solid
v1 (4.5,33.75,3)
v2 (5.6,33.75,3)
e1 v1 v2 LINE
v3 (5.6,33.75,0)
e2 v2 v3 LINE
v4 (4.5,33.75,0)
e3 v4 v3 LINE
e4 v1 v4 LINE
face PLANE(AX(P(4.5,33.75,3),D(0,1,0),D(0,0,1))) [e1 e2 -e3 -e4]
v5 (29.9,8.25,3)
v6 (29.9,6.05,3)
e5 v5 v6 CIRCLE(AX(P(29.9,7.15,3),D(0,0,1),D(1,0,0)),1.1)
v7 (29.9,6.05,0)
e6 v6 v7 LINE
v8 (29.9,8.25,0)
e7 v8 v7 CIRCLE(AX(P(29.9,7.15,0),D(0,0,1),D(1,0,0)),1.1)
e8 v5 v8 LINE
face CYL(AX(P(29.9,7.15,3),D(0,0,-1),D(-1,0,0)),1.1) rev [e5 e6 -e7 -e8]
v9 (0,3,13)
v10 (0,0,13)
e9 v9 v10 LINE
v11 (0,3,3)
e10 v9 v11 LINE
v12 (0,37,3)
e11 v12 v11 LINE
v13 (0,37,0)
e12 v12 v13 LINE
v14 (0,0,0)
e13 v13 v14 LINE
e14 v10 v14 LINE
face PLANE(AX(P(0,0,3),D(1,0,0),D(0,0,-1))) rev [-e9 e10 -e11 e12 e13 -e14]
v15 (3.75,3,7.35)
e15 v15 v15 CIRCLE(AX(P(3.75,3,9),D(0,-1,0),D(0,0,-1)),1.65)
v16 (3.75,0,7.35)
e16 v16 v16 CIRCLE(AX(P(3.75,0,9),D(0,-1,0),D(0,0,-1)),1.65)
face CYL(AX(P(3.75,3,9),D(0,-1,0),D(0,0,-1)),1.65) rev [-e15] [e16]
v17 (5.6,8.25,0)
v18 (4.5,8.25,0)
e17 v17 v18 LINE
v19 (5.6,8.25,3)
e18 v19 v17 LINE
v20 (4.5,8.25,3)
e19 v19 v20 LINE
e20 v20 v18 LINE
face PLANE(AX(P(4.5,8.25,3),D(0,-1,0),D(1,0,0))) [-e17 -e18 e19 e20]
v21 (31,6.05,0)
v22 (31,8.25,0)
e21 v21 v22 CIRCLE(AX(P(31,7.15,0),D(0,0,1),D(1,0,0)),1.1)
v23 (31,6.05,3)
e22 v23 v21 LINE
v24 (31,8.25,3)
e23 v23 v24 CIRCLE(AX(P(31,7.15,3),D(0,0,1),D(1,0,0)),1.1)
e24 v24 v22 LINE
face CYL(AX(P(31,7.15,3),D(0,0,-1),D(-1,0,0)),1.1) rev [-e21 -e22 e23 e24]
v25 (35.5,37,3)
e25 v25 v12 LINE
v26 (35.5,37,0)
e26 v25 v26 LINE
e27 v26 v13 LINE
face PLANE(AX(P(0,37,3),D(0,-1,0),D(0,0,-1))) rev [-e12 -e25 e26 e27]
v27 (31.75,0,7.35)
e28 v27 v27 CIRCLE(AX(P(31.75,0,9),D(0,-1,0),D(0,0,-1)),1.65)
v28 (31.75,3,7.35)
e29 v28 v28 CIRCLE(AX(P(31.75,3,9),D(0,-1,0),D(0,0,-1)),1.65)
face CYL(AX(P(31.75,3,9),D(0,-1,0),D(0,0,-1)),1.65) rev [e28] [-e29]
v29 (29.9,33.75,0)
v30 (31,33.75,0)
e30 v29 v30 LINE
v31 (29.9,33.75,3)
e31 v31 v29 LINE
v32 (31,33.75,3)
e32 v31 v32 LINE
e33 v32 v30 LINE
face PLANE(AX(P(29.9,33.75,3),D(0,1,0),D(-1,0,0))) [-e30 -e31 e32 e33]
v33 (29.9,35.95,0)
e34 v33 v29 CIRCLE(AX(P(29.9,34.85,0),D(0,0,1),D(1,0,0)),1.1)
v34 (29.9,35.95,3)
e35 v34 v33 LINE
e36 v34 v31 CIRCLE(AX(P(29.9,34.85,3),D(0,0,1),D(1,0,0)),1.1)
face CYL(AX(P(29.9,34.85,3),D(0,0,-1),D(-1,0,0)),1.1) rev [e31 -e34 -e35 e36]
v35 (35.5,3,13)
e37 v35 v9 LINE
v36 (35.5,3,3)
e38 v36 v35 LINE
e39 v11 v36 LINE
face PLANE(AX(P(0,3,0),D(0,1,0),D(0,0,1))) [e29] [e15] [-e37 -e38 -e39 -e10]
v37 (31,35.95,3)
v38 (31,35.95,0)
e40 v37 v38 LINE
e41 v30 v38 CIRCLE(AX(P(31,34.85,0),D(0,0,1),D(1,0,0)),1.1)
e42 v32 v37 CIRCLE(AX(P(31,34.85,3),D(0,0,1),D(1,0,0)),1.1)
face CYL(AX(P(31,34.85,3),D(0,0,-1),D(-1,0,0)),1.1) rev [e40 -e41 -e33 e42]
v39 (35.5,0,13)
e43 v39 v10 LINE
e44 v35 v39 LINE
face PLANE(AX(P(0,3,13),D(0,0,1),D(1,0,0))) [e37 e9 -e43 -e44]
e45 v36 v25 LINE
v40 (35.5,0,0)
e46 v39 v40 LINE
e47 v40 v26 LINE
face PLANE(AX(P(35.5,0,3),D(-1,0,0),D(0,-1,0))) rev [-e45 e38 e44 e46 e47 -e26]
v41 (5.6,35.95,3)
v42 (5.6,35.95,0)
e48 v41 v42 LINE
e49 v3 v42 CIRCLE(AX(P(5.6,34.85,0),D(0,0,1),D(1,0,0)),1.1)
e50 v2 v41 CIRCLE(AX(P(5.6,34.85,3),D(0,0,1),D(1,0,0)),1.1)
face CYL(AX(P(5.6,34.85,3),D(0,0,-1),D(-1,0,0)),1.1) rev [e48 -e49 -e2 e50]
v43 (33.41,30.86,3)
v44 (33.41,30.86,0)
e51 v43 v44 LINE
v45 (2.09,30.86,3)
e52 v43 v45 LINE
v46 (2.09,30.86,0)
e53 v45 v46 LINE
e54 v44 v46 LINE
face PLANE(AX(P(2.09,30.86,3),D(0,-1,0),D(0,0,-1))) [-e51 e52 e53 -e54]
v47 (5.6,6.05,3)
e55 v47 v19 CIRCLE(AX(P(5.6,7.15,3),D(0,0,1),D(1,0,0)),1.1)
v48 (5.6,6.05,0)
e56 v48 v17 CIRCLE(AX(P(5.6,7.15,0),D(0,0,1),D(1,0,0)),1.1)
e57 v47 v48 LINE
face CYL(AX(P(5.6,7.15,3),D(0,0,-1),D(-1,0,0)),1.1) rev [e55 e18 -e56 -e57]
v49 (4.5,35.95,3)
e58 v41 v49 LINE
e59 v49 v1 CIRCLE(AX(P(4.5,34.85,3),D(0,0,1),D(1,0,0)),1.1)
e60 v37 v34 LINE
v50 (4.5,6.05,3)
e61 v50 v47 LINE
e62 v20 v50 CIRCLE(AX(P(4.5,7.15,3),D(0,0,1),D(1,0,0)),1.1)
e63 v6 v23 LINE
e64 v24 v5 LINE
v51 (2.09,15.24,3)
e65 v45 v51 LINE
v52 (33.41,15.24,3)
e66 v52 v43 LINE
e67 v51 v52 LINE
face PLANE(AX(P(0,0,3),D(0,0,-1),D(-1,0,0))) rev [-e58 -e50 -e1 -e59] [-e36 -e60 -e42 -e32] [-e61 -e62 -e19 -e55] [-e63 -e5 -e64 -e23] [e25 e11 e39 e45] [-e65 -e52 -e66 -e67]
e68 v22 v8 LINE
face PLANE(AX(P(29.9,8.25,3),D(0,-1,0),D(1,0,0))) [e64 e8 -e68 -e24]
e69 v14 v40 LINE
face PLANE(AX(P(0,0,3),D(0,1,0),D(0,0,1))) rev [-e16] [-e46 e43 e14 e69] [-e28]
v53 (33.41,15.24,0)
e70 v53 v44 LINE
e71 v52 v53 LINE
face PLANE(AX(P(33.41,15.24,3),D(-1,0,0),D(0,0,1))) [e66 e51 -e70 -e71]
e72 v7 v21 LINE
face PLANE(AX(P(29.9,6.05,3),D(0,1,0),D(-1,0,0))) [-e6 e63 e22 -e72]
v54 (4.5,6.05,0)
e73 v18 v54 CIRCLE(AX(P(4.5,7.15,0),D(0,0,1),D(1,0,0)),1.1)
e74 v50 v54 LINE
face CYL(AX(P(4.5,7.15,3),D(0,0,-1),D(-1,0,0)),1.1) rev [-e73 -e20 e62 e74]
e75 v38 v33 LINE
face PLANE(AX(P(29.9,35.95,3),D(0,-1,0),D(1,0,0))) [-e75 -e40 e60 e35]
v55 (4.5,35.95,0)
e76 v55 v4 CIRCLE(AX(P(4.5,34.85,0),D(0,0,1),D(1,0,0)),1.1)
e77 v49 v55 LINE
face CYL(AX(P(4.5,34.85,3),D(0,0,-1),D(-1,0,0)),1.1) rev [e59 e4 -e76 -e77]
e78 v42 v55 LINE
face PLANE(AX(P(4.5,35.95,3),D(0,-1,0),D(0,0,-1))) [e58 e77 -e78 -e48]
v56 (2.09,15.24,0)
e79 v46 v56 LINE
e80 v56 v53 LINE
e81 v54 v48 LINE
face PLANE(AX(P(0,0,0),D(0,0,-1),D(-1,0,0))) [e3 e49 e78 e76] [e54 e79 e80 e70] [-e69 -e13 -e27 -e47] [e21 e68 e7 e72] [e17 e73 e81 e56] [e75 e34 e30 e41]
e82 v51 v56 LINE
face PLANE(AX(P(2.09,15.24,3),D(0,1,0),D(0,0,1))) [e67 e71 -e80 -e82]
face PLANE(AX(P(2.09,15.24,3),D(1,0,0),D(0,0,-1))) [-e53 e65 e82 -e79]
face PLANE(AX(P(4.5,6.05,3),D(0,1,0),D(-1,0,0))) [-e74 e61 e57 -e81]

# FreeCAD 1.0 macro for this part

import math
import FreeCAD as App
import Part
import Sketcher
from FreeCAD import Vector
Q = App.Units.Quantity


def add_polygon(sketch, points):
    """Adds a closed chain of lines whose ends are joined by coincident constraints."""
    first, n = sketch.GeometryCount, len(points)
    for a, b in zip(points, points[1:] + points[:1]):
        sketch.addGeometry(Part.LineSegment(App.Vector(*a, 0), App.Vector(*b, 0)), False)
    for i in range(n):
        sketch.addConstraint(Sketcher.Constraint("Coincident", first + i, 2, first + (i + 1) % n, 1))

doc = App.newDocument("Part")
body = doc.addObject("PartDesign::Body", "Body")

# Sketch on XY plane
sketch1 = body.newObject("Sketcher::SketchObject", "Sketch")
sketch1.AttachmentSupport = (doc.getObject("XY_Plane"), [""])
sketch1.MapMode = "FlatFace"
add_polygon(sketch1, [(0, 37), (0, 0), (35.5, 0), (35.5, 37)])  # lines 0-3
sketch1.addGeometry(Part.ArcOfCircle(Part.Circle(Vector(4.5, 7.2, 0), Vector(0, 0, 1), 1.1), math.radians(90), math.radians(270)), False)  # 4
sketch1.addGeometry(Part.LineSegment(Vector(4.5, 8.2, 0), Vector(5.6, 8.2, 0)), False)  # 5
sketch1.addGeometry(Part.ArcOfCircle(Part.Circle(Vector(5.6, 7.2, 0), Vector(0, 0, 1), 1.1), math.radians(-90), math.radians(90)), False)  # 6
sketch1.addGeometry(Part.LineSegment(Vector(5.6, 6, 0), Vector(4.5, 6, 0)), False)  # 7
sketch1.addGeometry(Part.ArcOfCircle(Part.Circle(Vector(29.9, 7.2, 0), Vector(0, 0, 1), 1.1), math.radians(90), math.radians(270)), False)  # 8
sketch1.addGeometry(Part.LineSegment(Vector(29.9, 8.2, 0), Vector(31, 8.2, 0)), False)  # 9
sketch1.addGeometry(Part.ArcOfCircle(Part.Circle(Vector(31, 7.2, 0), Vector(0, 0, 1), 1.1), math.radians(-90), math.radians(90)), False)  # 10
sketch1.addGeometry(Part.LineSegment(Vector(31, 6, 0), Vector(29.9, 6, 0)), False)  # 11
sketch1.addGeometry(Part.ArcOfCircle(Part.Circle(Vector(4.5, 34.9, 0), Vector(0, 0, 1), 1.1), math.radians(90), math.radians(270)), False)  # 12
sketch1.addGeometry(Part.LineSegment(Vector(4.5, 36, 0), Vector(5.6, 36, 0)), False)  # 13
sketch1.addGeometry(Part.ArcOfCircle(Part.Circle(Vector(5.6, 34.9, 0), Vector(0, 0, 1), 1.1), math.radians(-90), math.radians(90)), False)  # 14
sketch1.addGeometry(Part.LineSegment(Vector(5.6, 33.8, 0), Vector(4.5, 33.8, 0)), False)  # 15
add_polygon(sketch1, [(33.4, 15.2), (2.1, 15.2), (2.1, 30.9), (33.4, 30.9)])  # lines 16-19
sketch1.addGeometry(Part.ArcOfCircle(Part.Circle(Vector(29.9, 34.9, 0), Vector(0, 0, 1), 1.1), math.radians(90), math.radians(270)), False)  # 20
sketch1.addGeometry(Part.LineSegment(Vector(29.9, 36, 0), Vector(31, 36, 0)), False)  # 21
sketch1.addGeometry(Part.ArcOfCircle(Part.Circle(Vector(31, 34.9, 0), Vector(0, 0, 1), 1.1), math.radians(-90), math.radians(90)), False)  # 22
sketch1.addGeometry(Part.LineSegment(Vector(31, 33.8, 0), Vector(29.9, 33.8, 0)), False)  # 23
sketch1.addConstraint(Sketcher.Constraint("Tangent", 4, 1, 5, 1))
sketch1.addConstraint(Sketcher.Constraint("Tangent", 5, 2, 6, 2))
sketch1.addConstraint(Sketcher.Constraint("Tangent", 6, 1, 7, 1))
sketch1.addConstraint(Sketcher.Constraint("Tangent", 7, 2, 4, 2))
sketch1.addConstraint(Sketcher.Constraint("Tangent", 8, 1, 9, 1))
sketch1.addConstraint(Sketcher.Constraint("Tangent", 9, 2, 10, 2))
sketch1.addConstraint(Sketcher.Constraint("Tangent", 10, 1, 11, 1))
sketch1.addConstraint(Sketcher.Constraint("Tangent", 11, 2, 8, 2))
sketch1.addConstraint(Sketcher.Constraint("Tangent", 12, 1, 13, 1))
sketch1.addConstraint(Sketcher.Constraint("Tangent", 13, 2, 14, 2))
sketch1.addConstraint(Sketcher.Constraint("Tangent", 14, 1, 15, 1))
sketch1.addConstraint(Sketcher.Constraint("Tangent", 15, 2, 12, 2))
sketch1.addConstraint(Sketcher.Constraint("Tangent", 20, 1, 21, 1))
sketch1.addConstraint(Sketcher.Constraint("Tangent", 21, 2, 22, 2))
sketch1.addConstraint(Sketcher.Constraint("Tangent", 22, 1, 23, 1))
sketch1.addConstraint(Sketcher.Constraint("Tangent", 23, 2, 20, 2))
sketch1.addConstraint(Sketcher.Constraint("Vertical", 0))
sketch1.addConstraint(Sketcher.Constraint("Horizontal", 1))
sketch1.addConstraint(Sketcher.Constraint("Vertical", 2))
sketch1.addConstraint(Sketcher.Constraint("Horizontal", 3))
sketch1.addConstraint(Sketcher.Constraint("Horizontal", 5))
sketch1.addConstraint(Sketcher.Constraint("Horizontal", 7))
sketch1.addConstraint(Sketcher.Constraint("Horizontal", 9))
sketch1.addConstraint(Sketcher.Constraint("Horizontal", 11))
sketch1.addConstraint(Sketcher.Constraint("Horizontal", 13))
sketch1.addConstraint(Sketcher.Constraint("Horizontal", 15))
sketch1.addConstraint(Sketcher.Constraint("Horizontal", 16))
sketch1.addConstraint(Sketcher.Constraint("Vertical", 17))
sketch1.addConstraint(Sketcher.Constraint("Horizontal", 18))
sketch1.addConstraint(Sketcher.Constraint("Vertical", 19))
sketch1.addConstraint(Sketcher.Constraint("Horizontal", 21))
sketch1.addConstraint(Sketcher.Constraint("Horizontal", 23))
sketch1.addConstraint(Sketcher.Constraint("Coincident", 0, 2, -1, 1))
sketch1.addConstraint(Sketcher.Constraint("Equal", 6, 8))
sketch1.addConstraint(Sketcher.Constraint("Equal", 10, 12))
sketch1.addConstraint(Sketcher.Constraint("Equal", 14, 20))
sketch1.addConstraint(Sketcher.Constraint("Horizontal", 6, 3, 8, 3))
sketch1.addConstraint(Sketcher.Constraint("Horizontal", 14, 3, 20, 3))
sketch1.addConstraint(Sketcher.Constraint("Vertical", 4, 3, 12, 3))
sketch1.addConstraint(Sketcher.Constraint("Vertical", 6, 3, 14, 3))
sketch1.addConstraint(Sketcher.Constraint("Vertical", 8, 3, 20, 3))
sketch1.addConstraint(Sketcher.Constraint("Vertical", 10, 3, 22, 3))
sketch1.addConstraint(Sketcher.Constraint("Equal", 7, 9))
sketch1.addConstraint(Sketcher.Constraint("Radius", 4, Q("1.1 mm")))
sketch1.addConstraint(Sketcher.Constraint("DistanceY", 0, 2, 0, 1, Q("37 mm")))
sketch1.addConstraint(Sketcher.Constraint("DistanceX", 1, 1, 1, 2, Q("35.5 mm")))
sketch1.addConstraint(Sketcher.Constraint("DistanceX", 5, 1, 5, 2, Q("1.1 mm")))
sketch1.addConstraint(Sketcher.Constraint("DistanceX", -1, 1, 10, 3, Q("31 mm")))
sketch1.addConstraint(Sketcher.Constraint("DistanceX", 4, 3, 1, 2, Q("31 mm")))
sketch1.addConstraint(Sketcher.Constraint("DistanceX", 16, 2, 16, 1, Q("31.32 mm")))
sketch1.addConstraint(Sketcher.Constraint("DistanceY", 17, 1, 17, 2, Q("15.62 mm")))
sketch1.addConstraint(Sketcher.Constraint("DistanceY", 4, 3, 12, 3, Q("27.7 mm")))
sketch1.addConstraint(Sketcher.Constraint("DistanceY", -1, 1, 4, 3, Q("7.15 mm")))
sketch1.addConstraint(Sketcher.Constraint("DistanceX", -1, 1, 16, 2, Q("2.09 mm")))
sketch1.addConstraint(Sketcher.Constraint("DistanceY", -1, 1, 16, 2, Q("15.24 mm")))
pad1 = body.newObject("PartDesign::Pad", "Pad")
pad1.Profile = sketch1
pad1.Length = 3

# Sketch on XZ plane
sketch2 = body.newObject("Sketcher::SketchObject", "Sketch001")
sketch2.AttachmentSupport = (doc.getObject("XZ_Plane"), [""])
sketch2.MapMode = "FlatFace"
add_polygon(sketch2, [(0, 13), (0, 3), (35.5, 3), (35.5, 13)])  # lines 0-3
sketch2.addGeometry(Part.Circle(Vector(3.8, 9, 0), Vector(0, 0, 1), 1.6), False)  # 4
sketch2.addGeometry(Part.Circle(Vector(31.8, 9, 0), Vector(0, 0, 1), 1.6), False)  # 5
sketch2.addConstraint(Sketcher.Constraint("Vertical", 0))
sketch2.addConstraint(Sketcher.Constraint("Horizontal", 1))
sketch2.addConstraint(Sketcher.Constraint("Vertical", 2))
sketch2.addConstraint(Sketcher.Constraint("Horizontal", 3))
sketch2.addConstraint(Sketcher.Constraint("Equal", 4, 5))
sketch2.addConstraint(Sketcher.Constraint("PointOnObject", 0, 2, -2))
sketch2.addConstraint(Sketcher.Constraint("Horizontal", 4, 3, 5, 3))
sketch2.addConstraint(Sketcher.Constraint("Diameter", 4, Q("3.3 mm")))
sketch2.addConstraint(Sketcher.Constraint("DistanceY", 0, 2, 0, 1, Q("10 mm")))
sketch2.addConstraint(Sketcher.Constraint("DistanceX", 1, 1, 1, 2, Q("35.5 mm")))
sketch2.addConstraint(Sketcher.Constraint("DistanceY", -1, 1, 4, 3, Q("9 mm")))
sketch2.addConstraint(Sketcher.Constraint("DistanceY", -1, 1, 0, 2, Q("3 mm")))
sketch2.addConstraint(Sketcher.Constraint("DistanceX", 4, 3, 5, 3, Q("28 mm")))
sketch2.addConstraint(Sketcher.Constraint("DistanceX", -1, 1, 4, 3, Q("3.75 mm")))
pad2 = body.newObject("PartDesign::Pad", "Pad001")
pad2.Profile = sketch2
pad2.Length = 3
pad2.Reversed = True

doc.recompute()
